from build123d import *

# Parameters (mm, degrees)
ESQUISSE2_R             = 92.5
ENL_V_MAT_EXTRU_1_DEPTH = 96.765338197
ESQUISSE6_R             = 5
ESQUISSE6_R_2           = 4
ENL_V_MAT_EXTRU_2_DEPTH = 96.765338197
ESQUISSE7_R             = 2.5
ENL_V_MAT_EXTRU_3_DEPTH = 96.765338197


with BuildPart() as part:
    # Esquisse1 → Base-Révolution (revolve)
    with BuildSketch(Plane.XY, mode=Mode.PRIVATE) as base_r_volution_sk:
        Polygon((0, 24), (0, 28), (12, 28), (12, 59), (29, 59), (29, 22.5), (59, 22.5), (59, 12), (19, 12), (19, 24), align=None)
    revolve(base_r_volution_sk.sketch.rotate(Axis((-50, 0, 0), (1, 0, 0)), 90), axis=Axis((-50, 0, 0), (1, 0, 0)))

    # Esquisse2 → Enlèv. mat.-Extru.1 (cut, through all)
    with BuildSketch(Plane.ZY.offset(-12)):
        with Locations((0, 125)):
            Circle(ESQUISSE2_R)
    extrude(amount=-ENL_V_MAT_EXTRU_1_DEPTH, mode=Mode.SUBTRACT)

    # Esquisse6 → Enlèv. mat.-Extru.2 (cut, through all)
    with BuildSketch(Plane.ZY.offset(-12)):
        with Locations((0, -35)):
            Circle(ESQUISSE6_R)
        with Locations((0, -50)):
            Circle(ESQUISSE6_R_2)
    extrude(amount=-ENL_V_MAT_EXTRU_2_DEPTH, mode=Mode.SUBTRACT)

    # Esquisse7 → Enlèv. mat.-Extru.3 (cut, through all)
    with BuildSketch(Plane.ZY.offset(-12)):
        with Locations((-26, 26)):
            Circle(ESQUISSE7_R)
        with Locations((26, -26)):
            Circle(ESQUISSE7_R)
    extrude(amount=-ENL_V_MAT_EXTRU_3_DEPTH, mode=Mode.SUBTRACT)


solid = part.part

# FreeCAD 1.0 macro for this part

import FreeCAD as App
import Part
import Sketcher
from FreeCAD import Vector
Q = App.Units.Quantity


def add_polygon(sketch, points):
    """Adds a closed chain of lines whose ends are joined by coincident constraints."""
    first, n = sketch.GeometryCount, len(points)
    for a, b in zip(points, points[1:] + points[:1]):
        sketch.addGeometry(Part.LineSegment(App.Vector(*a, 0), App.Vector(*b, 0)), False)
    for i in range(n):
        sketch.addConstraint(Sketcher.Constraint("Coincident", first + i, 2, first + (i + 1) % n, 1))

doc = App.newDocument("Part")
body = doc.addObject("PartDesign::Body", "Body")

sketch1 = body.newObject("Sketcher::SketchObject", "Sketch")
sketch1.AttachmentSupport = (doc.getObject("XY_Plane"), [""])
sketch1.MapMode = "FlatFace"
add_polygon(sketch1, [(0, 28), (0, 24), (19, 24), (19, 12), (59, 12), (59, 22.5), (29, 22.5), (29, 59), (12, 59), (12, 28)])
sketch1.addConstraint([
    Sketcher.Constraint("Vertical", 0),
    Sketcher.Constraint("Horizontal", 1),
    Sketcher.Constraint("Vertical", 2),
    Sketcher.Constraint("Horizontal", 3),
    Sketcher.Constraint("Vertical", 4),
    Sketcher.Constraint("Horizontal", 5),
    Sketcher.Constraint("Vertical", 6),
    Sketcher.Constraint("Horizontal", 7),
    Sketcher.Constraint("Vertical", 8),
    Sketcher.Constraint("Horizontal", 9),
    Sketcher.Constraint("PointOnObject", 0, 2, -2),
    Sketcher.Constraint("Equal", 9, 2),
    Sketcher.Constraint("DistanceX", 1, 1, 1, 2, Q("19 mm")),
    Sketcher.Constraint("DistanceX", 3, 1, 3, 2, Q("40 mm")),
    Sketcher.Constraint("DistanceX", 5, 2, 5, 1, Q("30 mm")),
    Sketcher.Constraint("DistanceX", 7, 2, 7, 1, Q("17 mm")),
    Sketcher.Constraint("DistanceY", 0, 2, 0, 1, Q("4 mm")),
    Sketcher.Constraint("DistanceY", 8, 2, 8, 1, Q("31 mm")),
    Sketcher.Constraint("DistanceY", 4, 1, 4, 2, Q("10.5 mm")),
    Sketcher.Constraint("DistanceY", -1, 1, 0, 2, Q("24 mm")),
])
revolution = body.newObject("PartDesign::Revolution", "Revolution")
revolution.Profile = sketch1
revolution.ReferenceAxis = (sketch1, ["H_Axis"])
revolution.Angle = 360

sketch2 = body.newObject("Sketcher::SketchObject", "Sketch001")
sketch2.AttachmentSupport = (doc.getObject("YZ_Plane"), [""])
sketch2.MapMode = "FlatFace"
sketch2.AttachmentOffset = App.Placement(Vector(0, 0, 12), App.Rotation())
sketch2.addGeometry(Part.Circle(Vector(125, 0, 0), Vector(0, 0, 1), 92), False)
sketch2.addConstraint([
    Sketcher.Constraint("PointOnObject", 0, 3, -1),
    Sketcher.Constraint("Diameter", 0, Q("185 mm")),
    Sketcher.Constraint("DistanceX", -1, 1, 0, 3, Q("125 mm")),
])
pocket1 = body.newObject("PartDesign::Pocket", "Pocket")
pocket1.Profile = sketch2
pocket1.Type = "ThroughAll"
pocket1.Reversed = True

sketch3 = body.newObject("Sketcher::SketchObject", "Sketch002")
sketch3.AttachmentSupport = (doc.getObject("YZ_Plane"), [""])
sketch3.MapMode = "FlatFace"
sketch3.AttachmentOffset = App.Placement(Vector(0, 0, 12), App.Rotation())
sketch3.addGeometry([
    Part.Circle(Vector(-35, 0, 0), Vector(0, 0, 1), 5),
    Part.Circle(Vector(-50, 0, 0), Vector(0, 0, 1), 4),
], False)
sketch3.addConstraint([
    Sketcher.Constraint("PointOnObject", 0, 3, -1),
    Sketcher.Constraint("PointOnObject", 1, 3, -1),
    Sketcher.Constraint("Diameter", 0, Q("10 mm")),
    Sketcher.Constraint("Diameter", 1, Q("8 mm")),
    Sketcher.Constraint("DistanceX", 0, 3, -1, 1, Q("35 mm")),
    Sketcher.Constraint("DistanceX", 1, 3, -1, 1, Q("50 mm")),
])
pocket2 = body.newObject("PartDesign::Pocket", "Pocket001")
pocket2.Profile = sketch3
pocket2.Type = "ThroughAll"
pocket2.Reversed = True

sketch4 = body.newObject("Sketcher::SketchObject", "Sketch003")
sketch4.AttachmentSupport = (doc.getObject("YZ_Plane"), [""])
sketch4.MapMode = "FlatFace"
sketch4.AttachmentOffset = App.Placement(Vector(0, 0, 12), App.Rotation())
sketch4.addGeometry([
    Part.Circle(Vector(26, -26, 0), Vector(0, 0, 1), 2.5),
    Part.Circle(Vector(-26, 26, 0), Vector(0, 0, 1), 2.5),
], False)
sketch4.addConstraint([
    Sketcher.Constraint("Equal", 0, 1),
    Sketcher.Constraint("Symmetric", 0, 3, 1, 3, -1, 1),
    Sketcher.Constraint("Diameter", 0, Q("5 mm")),
    Sketcher.Constraint("DistanceX", -1, 1, 0, 3, Q("26 mm")),
    Sketcher.Constraint("DistanceY", 0, 3, -1, 1, Q("26 mm")),
])
pocket3 = body.newObject("PartDesign::Pocket", "Pocket002")
pocket3.Profile = sketch4
pocket3.Type = "ThroughAll"
pocket3.Reversed = True

doc.recompute()
